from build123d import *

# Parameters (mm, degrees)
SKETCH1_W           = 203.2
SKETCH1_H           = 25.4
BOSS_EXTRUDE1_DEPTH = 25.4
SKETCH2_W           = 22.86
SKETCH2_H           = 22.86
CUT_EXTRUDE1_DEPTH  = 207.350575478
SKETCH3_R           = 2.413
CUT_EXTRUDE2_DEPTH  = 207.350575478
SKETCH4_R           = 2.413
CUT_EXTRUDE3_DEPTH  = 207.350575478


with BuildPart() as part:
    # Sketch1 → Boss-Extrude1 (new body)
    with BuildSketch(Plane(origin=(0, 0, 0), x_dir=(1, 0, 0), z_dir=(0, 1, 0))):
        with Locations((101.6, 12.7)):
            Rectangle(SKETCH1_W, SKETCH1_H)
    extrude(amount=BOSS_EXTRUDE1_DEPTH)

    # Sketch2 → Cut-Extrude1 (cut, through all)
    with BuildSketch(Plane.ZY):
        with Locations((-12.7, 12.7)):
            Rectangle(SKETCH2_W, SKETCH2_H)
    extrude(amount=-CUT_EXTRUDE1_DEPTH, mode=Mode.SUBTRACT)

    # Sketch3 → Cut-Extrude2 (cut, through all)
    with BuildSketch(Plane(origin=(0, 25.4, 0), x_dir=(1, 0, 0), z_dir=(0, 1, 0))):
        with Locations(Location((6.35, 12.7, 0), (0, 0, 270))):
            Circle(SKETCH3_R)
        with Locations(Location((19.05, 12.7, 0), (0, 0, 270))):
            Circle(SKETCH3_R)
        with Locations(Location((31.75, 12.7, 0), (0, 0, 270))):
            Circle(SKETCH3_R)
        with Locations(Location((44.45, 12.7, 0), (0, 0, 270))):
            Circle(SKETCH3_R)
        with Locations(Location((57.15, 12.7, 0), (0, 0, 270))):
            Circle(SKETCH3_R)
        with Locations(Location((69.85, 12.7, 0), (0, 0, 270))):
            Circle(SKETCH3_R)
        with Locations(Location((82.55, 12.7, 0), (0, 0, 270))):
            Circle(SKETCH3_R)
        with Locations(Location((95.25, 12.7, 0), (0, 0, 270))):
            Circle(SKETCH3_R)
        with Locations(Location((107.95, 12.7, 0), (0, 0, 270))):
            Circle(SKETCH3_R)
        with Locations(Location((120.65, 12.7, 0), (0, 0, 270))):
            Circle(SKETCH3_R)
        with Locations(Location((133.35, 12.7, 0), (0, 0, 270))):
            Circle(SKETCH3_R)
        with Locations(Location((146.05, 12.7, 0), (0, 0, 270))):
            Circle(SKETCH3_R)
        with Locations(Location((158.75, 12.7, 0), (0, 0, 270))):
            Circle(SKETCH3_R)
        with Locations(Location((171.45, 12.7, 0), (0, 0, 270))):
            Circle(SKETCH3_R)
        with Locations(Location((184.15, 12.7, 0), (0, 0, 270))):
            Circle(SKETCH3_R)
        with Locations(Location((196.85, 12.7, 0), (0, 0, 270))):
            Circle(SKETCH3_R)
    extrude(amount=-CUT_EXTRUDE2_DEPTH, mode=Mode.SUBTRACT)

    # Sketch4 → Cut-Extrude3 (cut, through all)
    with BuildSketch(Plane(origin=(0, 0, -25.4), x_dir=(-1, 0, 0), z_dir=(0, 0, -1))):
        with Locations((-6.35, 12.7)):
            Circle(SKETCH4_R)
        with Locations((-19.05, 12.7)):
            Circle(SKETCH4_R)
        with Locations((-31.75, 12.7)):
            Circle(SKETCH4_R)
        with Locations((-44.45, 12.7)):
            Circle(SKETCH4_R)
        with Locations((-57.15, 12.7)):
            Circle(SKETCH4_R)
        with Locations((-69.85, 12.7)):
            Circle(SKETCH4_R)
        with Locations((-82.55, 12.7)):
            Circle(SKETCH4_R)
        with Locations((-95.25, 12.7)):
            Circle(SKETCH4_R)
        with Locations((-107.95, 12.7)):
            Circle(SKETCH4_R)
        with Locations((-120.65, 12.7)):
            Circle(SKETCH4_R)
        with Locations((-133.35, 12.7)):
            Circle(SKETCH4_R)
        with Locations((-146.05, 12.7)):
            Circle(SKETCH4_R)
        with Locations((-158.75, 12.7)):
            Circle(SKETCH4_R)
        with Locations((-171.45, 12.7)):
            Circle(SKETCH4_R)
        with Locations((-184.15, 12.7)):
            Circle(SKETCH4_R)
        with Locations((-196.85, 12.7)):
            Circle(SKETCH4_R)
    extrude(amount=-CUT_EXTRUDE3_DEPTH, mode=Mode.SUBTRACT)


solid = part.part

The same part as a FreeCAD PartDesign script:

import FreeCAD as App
import Part
import Sketcher
from FreeCAD import Vector
Q = App.Units.Quantity


def add_polygon(sketch, points):
    """Adds a closed chain of lines whose ends are joined by coincident constraints."""
    first, n = sketch.GeometryCount, len(points)
    for a, b in zip(points, points[1:] + points[:1]):
        sketch.addGeometry(Part.LineSegment(App.Vector(*a, 0), App.Vector(*b, 0)), False)
    for i in range(n):
        sketch.addConstraint(Sketcher.Constraint("Coincident", first + i, 2, first + (i + 1) % n, 1))

doc = App.newDocument("Part")
params = doc.addObject("Spreadsheet::Sheet", "Params")
for row, (alias, value) in enumerate([
    ("sketch1_width", "8 in"),
    ("sketch1_height", "1 in"),
    ("pad1_length", "1 in"),
    ("sketch2_width", "0.9 in"),
    ("sketch3_diameter", "0.19 in"),
    ("sketch4_diameter", "0.19 in"),
], start=1):
    params.set(f"A{row}", alias)
    params.set(f"B{row}", "=" + value)
    params.setAlias(f"B{row}", alias)

body = doc.addObject("PartDesign::Body", "Body")

sketch1 = doc.addObject("Sketcher::SketchObject", "Sketch")
body.addObject(sketch1)
sketch1.AttachmentSupport = (doc.XZ_Plane, [""])
sketch1.MapMode = "FlatFace"
add_polygon(sketch1, [(0, -25.4), (0, 0), (203.2, 0), (203.2, -25.4)])
sketch1.addConstraint(Sketcher.Constraint("Vertical", 0))
sketch1.addConstraint(Sketcher.Constraint("Horizontal", 1))
sketch1.addConstraint(Sketcher.Constraint("Vertical", 2))
sketch1.addConstraint(Sketcher.Constraint("Horizontal", 3))
sketch1.addConstraint(Sketcher.Constraint("Coincident", 0, 2, -1, 1))
sketch1.addConstraint(Sketcher.Constraint("DistanceX", 1, 1, 1, 2, Q("8 in")))
sketch1.addConstraint(Sketcher.Constraint("DistanceY", 0, 1, 0, 2, Q("1 in")))
sketch1.setExpression("Constraints[9]", "Params.sketch1_width")
sketch1.setExpression("Constraints[10]", "Params.sketch1_height")
pad1 = doc.addObject("PartDesign::Pad", "Pad")
body.addObject(pad1)
pad1.Profile = sketch1
pad1.setExpression("Length", "Params.pad1_length")
pad1.Reversed = True

sketch2 = doc.addObject("Sketcher::SketchObject", "Sketch001")
body.addObject(sketch2)
sketch2.AttachmentSupport = (doc.YZ_Plane, [""])
sketch2.MapMode = "FlatFace"
add_polygon(sketch2, [(24.13, -24.13), (1.27, -24.13), (1.27, -1.27), (24.13, -1.27)])
sketch2.addConstraint(Sketcher.Constraint("Horizontal", 0))
sketch2.addConstraint(Sketcher.Constraint("Vertical", 1))
sketch2.addConstraint(Sketcher.Constraint("Horizontal", 2))
sketch2.addConstraint(Sketcher.Constraint("Vertical", 3))
sketch2.addConstraint(Sketcher.Constraint("Equal", 2, 1))
sketch2.addConstraint(Sketcher.Constraint("DistanceX", 0, 2, 0, 1, Q("0.9 in")))
sketch2.addConstraint(Sketcher.Constraint("DistanceX", -1, 1, 0, 2, Q("0.05 in")))
sketch2.addConstraint(Sketcher.Constraint("DistanceY", 0, 2, -1, 1, Q("0.95 in")))
sketch2.setExpression("Constraints[9]", "Params.sketch2_width")
pocket1 = doc.addObject("PartDesign::Pocket", "Pocket")
body.addObject(pocket1)
pocket1.Profile = sketch2
pocket1.Type = "ThroughAll"
pocket1.Reversed = True

sketch3 = doc.addObject("Sketcher::SketchObject", "Sketch002")
body.addObject(sketch3)
sketch3.AttachmentSupport = (doc.XZ_Plane, [""])
sketch3.MapMode = "FlatFace"
sketch3.AttachmentOffset = App.Placement(Vector(0, 0, -1 * 25.4), App.Rotation())
sketch3.addGeometry(Part.Circle(Vector(6.35, -12.7, 0), Vector(0, 0, 1), 2.413), False)
sketch3.addGeometry(Part.Circle(Vector(19.05, -12.7, 0), Vector(0, 0, 1), 2.413), False)
sketch3.addGeometry(Part.Circle(Vector(31.75, -12.7, 0), Vector(0, 0, 1), 2.413), False)
sketch3.addGeometry(Part.Circle(Vector(44.45, -12.7, 0), Vector(0, 0, 1), 2.413), False)
sketch3.addGeometry(Part.Circle(Vector(57.15, -12.7, 0), Vector(0, 0, 1), 2.413), False)
sketch3.addGeometry(Part.Circle(Vector(69.85, -12.7, 0), Vector(0, 0, 1), 2.413), False)
sketch3.addGeometry(Part.Circle(Vector(82.55, -12.7, 0), Vector(0, 0, 1), 2.413), False)
sketch3.addGeometry(Part.Circle(Vector(95.25, -12.7, 0), Vector(0, 0, 1), 2.413), False)
sketch3.addGeometry(Part.Circle(Vector(107.95, -12.7, 0), Vector(0, 0, 1), 2.413), False)
sketch3.addGeometry(Part.Circle(Vector(120.65, -12.7, 0), Vector(0, 0, 1), 2.413), False)
sketch3.addGeometry(Part.Circle(Vector(133.35, -12.7, 0), Vector(0, 0, 1), 2.413), False)
sketch3.addGeometry(Part.Circle(Vector(146.05, -12.7, 0), Vector(0, 0, 1), 2.413), False)
sketch3.addGeometry(Part.Circle(Vector(158.75, -12.7, 0), Vector(0, 0, 1), 2.413), False)
sketch3.addGeometry(Part.Circle(Vector(171.45, -12.7, 0), Vector(0, 0, 1), 2.413), False)
sketch3.addGeometry(Part.Circle(Vector(184.15, -12.7, 0), Vector(0, 0, 1), 2.413), False)
sketch3.addGeometry(Part.Circle(Vector(196.85, -12.7, 0), Vector(0, 0, 1), 2.413), False)
sketch3.addConstraint(Sketcher.Constraint("Equal", 0, 1))
sketch3.addConstraint(Sketcher.Constraint("Equal", 1, 2))
sketch3.addConstraint(Sketcher.Constraint("Equal", 2, 3))
sketch3.addConstraint(Sketcher.Constraint("Equal", 3, 4))
sketch3.addConstraint(Sketcher.Constraint("Equal", 4, 5))
sketch3.addConstraint(Sketcher.Constraint("Equal", 5, 6))
sketch3.addConstraint(Sketcher.Constraint("Equal", 6, 7))
sketch3.addConstraint(Sketcher.Constraint("Equal", 7, 8))
sketch3.addConstraint(Sketcher.Constraint("Equal", 8, 9))
sketch3.addConstraint(Sketcher.Constraint("Equal", 9, 10))
sketch3.addConstraint(Sketcher.Constraint("Equal", 10, 11))
sketch3.addConstraint(Sketcher.Constraint("Equal", 11, 12))
sketch3.addConstraint(Sketcher.Constraint("Equal", 12, 13))
sketch3.addConstraint(Sketcher.Constraint("Equal", 13, 14))
sketch3.addConstraint(Sketcher.Constraint("Equal", 14, 15))
sketch3.addConstraint(Sketcher.Constraint("Horizontal", 0, 3, 1, 3))
sketch3.addConstraint(Sketcher.Constraint("Horizontal", 1, 3, 2, 3))
sketch3.addConstraint(Sketcher.Constraint("Horizontal", 2, 3, 3, 3))
sketch3.addConstraint(Sketcher.Constraint("Horizontal", 3, 3, 4, 3))
sketch3.addConstraint(Sketcher.Constraint("Horizontal", 4, 3, 5, 3))
sketch3.addConstraint(Sketcher.Constraint("Horizontal", 5, 3, 6, 3))
sketch3.addConstraint(Sketcher.Constraint("Horizontal", 6, 3, 7, 3))
sketch3.addConstraint(Sketcher.Constraint("Horizontal", 7, 3, 8, 3))
sketch3.addConstraint(Sketcher.Constraint("Horizontal", 8, 3, 9, 3))
sketch3.addConstraint(Sketcher.Constraint("Horizontal", 9, 3, 10, 3))
sketch3.addConstraint(Sketcher.Constraint("Horizontal", 10, 3, 11, 3))
sketch3.addConstraint(Sketcher.Constraint("Horizontal", 11, 3, 12, 3))
sketch3.addConstraint(Sketcher.Constraint("Horizontal", 12, 3, 13, 3))
sketch3.addConstraint(Sketcher.Constraint("Horizontal", 13, 3, 14, 3))
sketch3.addConstraint(Sketcher.Constraint("Horizontal", 14, 3, 15, 3))
sketch3.addConstraint(Sketcher.Constraint("Diameter", 0, Q("0.19 in")))
sketch3.addConstraint(Sketcher.Constraint("DistanceX", 0, 3, 2, 3, Q("1 in")))
sketch3.addConstraint(Sketcher.Constraint("DistanceX", 1, 3, 3, 3, Q("1 in")))
sketch3.addConstraint(Sketcher.Constraint("DistanceX", 2, 3, 4, 3, Q("1 in")))
sketch3.addConstraint(Sketcher.Constraint("DistanceX", 3, 3, 5, 3, Q("1 in")))
sketch3.addConstraint(Sketcher.Constraint("DistanceX", 4, 3, 6, 3, Q("1 in")))
sketch3.addConstraint(Sketcher.Constraint("DistanceX", 5, 3, 7, 3, Q("1 in")))
sketch3.addConstraint(Sketcher.Constraint("DistanceX", 6, 3, 8, 3, Q("1 in")))
sketch3.addConstraint(Sketcher.Constraint("DistanceX", 7, 3, 9, 3, Q("1 in")))
sketch3.addConstraint(Sketcher.Constraint("DistanceX", 8, 3, 10, 3, Q("1 in")))
sketch3.addConstraint(Sketcher.Constraint("DistanceX", 9, 3, 11, 3, Q("1 in")))
sketch3.addConstraint(Sketcher.Constraint("DistanceX", 10, 3, 12, 3, Q("1 in")))
sketch3.addConstraint(Sketcher.Constraint("DistanceX", 11, 3, 13, 3, Q("1 in")))
sketch3.addConstraint(Sketcher.Constraint("DistanceX", 12, 3, 14, 3, Q("1 in")))
sketch3.addConstraint(Sketcher.Constraint("DistanceX", 13, 3, 15, 3, Q("1 in")))
sketch3.addConstraint(Sketcher.Constraint("DistanceY", 0, 3, -1, 1, Q("0.5 in")))
sketch3.addConstraint(Sketcher.Constraint("DistanceX", 0, 3, 1, 3, Q("0.5 in")))
sketch3.addConstraint(Sketcher.Constraint("DistanceX", -1, 1, 0, 3, Q("0.25 in")))
sketch3.setExpression("Constraints[30]", "Params.sketch3_diameter")
pocket2 = doc.addObject("PartDesign::Pocket", "Pocket001")
body.addObject(pocket2)
pocket2.Profile = sketch3
pocket2.Type = "ThroughAll"
pocket2.Reversed = True

sketch4 = doc.addObject("Sketcher::SketchObject", "Sketch003")
body.addObject(sketch4)
sketch4.AttachmentSupport = (doc.XY_Plane, [""])
sketch4.MapMode = "FlatFace"
sketch4.AttachmentOffset = App.Placement(Vector(0, 0, -1 * 25.4), App.Rotation())
sketch4.addGeometry(Part.Circle(Vector(6.35, 12.7, 0), Vector(0, 0, 1), 2.413), False)
sketch4.addGeometry(Part.Circle(Vector(19.05, 12.7, 0), Vector(0, 0, 1), 2.413), False)
sketch4.addGeometry(Part.Circle(Vector(31.75, 12.7, 0), Vector(0, 0, 1), 2.413), False)
sketch4.addGeometry(Part.Circle(Vector(44.45, 12.7, 0), Vector(0, 0, 1), 2.413), False)
sketch4.addGeometry(Part.Circle(Vector(57.15, 12.7, 0), Vector(0, 0, 1), 2.413), False)
sketch4.addGeometry(Part.Circle(Vector(69.85, 12.7, 0), Vector(0, 0, 1), 2.413), False)
sketch4.addGeometry(Part.Circle(Vector(82.55, 12.7, 0), Vector(0, 0, 1), 2.413), False)
sketch4.addGeometry(Part.Circle(Vector(95.25, 12.7, 0), Vector(0, 0, 1), 2.413), False)
sketch4.addGeometry(Part.Circle(Vector(107.95, 12.7, 0), Vector(0, 0, 1), 2.413), False)
sketch4.addGeometry(Part.Circle(Vector(120.65, 12.7, 0), Vector(0, 0, 1), 2.413), False)
sketch4.addGeometry(Part.Circle(Vector(133.35, 12.7, 0), Vector(0, 0, 1), 2.413), False)
sketch4.addGeometry(Part.Circle(Vector(146.05, 12.7, 0), Vector(0, 0, 1), 2.413), False)
sketch4.addGeometry(Part.Circle(Vector(158.75, 12.7, 0), Vector(0, 0, 1), 2.413), False)
sketch4.addGeometry(Part.Circle(Vector(171.45, 12.7, 0), Vector(0, 0, 1), 2.413), False)
sketch4.addGeometry(Part.Circle(Vector(184.15, 12.7, 0), Vector(0, 0, 1), 2.413), False)
sketch4.addGeometry(Part.Circle(Vector(196.85, 12.7, 0), Vector(0, 0, 1), 2.413), False)
sketch4.addConstraint(Sketcher.Constraint("Equal", 0, 1))
sketch4.addConstraint(Sketcher.Constraint("Equal", 1, 2))
sketch4.addConstraint(Sketcher.Constraint("Equal", 2, 3))
sketch4.addConstraint(Sketcher.Constraint("Equal", 3, 4))
sketch4.addConstraint(Sketcher.Constraint("Equal", 4, 5))
sketch4.addConstraint(Sketcher.Constraint("Equal", 5, 6))
sketch4.addConstraint(Sketcher.Constraint("Equal", 6, 7))
sketch4.addConstraint(Sketcher.Constraint("Equal", 7, 8))
sketch4.addConstraint(Sketcher.Constraint("Equal", 8, 9))
sketch4.addConstraint(Sketcher.Constraint("Equal", 9, 10))
sketch4.addConstraint(Sketcher.Constraint("Equal", 10, 11))
sketch4.addConstraint(Sketcher.Constraint("Equal", 11, 12))
sketch4.addConstraint(Sketcher.Constraint("Equal", 12, 13))
sketch4.addConstraint(Sketcher.Constraint("Equal", 13, 14))
sketch4.addConstraint(Sketcher.Constraint("Equal", 14, 15))
sketch4.addConstraint(Sketcher.Constraint("Horizontal", 0, 3, 1, 3))
sketch4.addConstraint(Sketcher.Constraint("Horizontal", 1, 3, 2, 3))
sketch4.addConstraint(Sketcher.Constraint("Horizontal", 2, 3, 3, 3))
sketch4.addConstraint(Sketcher.Constraint("Horizontal", 3, 3, 4, 3))
sketch4.addConstraint(Sketcher.Constraint("Horizontal", 4, 3, 5, 3))
sketch4.addConstraint(Sketcher.Constraint("Horizontal", 5, 3, 6, 3))
sketch4.addConstraint(Sketcher.Constraint("Horizontal", 6, 3, 7, 3))
sketch4.addConstraint(Sketcher.Constraint("Horizontal", 7, 3, 8, 3))
sketch4.addConstraint(Sketcher.Constraint("Horizontal", 8, 3, 9, 3))
sketch4.addConstraint(Sketcher.Constraint("Horizontal", 9, 3, 10, 3))
sketch4.addConstraint(Sketcher.Constraint("Horizontal", 10, 3, 11, 3))
sketch4.addConstraint(Sketcher.Constraint("Horizontal", 11, 3, 12, 3))
sketch4.addConstraint(Sketcher.Constraint("Horizontal", 12, 3, 13, 3))
sketch4.addConstraint(Sketcher.Constraint("Horizontal", 13, 3, 14, 3))
sketch4.addConstraint(Sketcher.Constraint("Horizontal", 14, 3, 15, 3))
sketch4.addConstraint(Sketcher.Constraint("Diameter", 0, Q("0.19 in")))
sketch4.addConstraint(Sketcher.Constraint("DistanceX", 0, 3, 2, 3, Q("1 in")))
sketch4.addConstraint(Sketcher.Constraint("DistanceX", 1, 3, 3, 3, Q("1 in")))
sketch4.addConstraint(Sketcher.Constraint("DistanceX", 2, 3, 4, 3, Q("1 in")))
sketch4.addConstraint(Sketcher.Constraint("DistanceX", 3, 3, 5, 3, Q("1 in")))
sketch4.addConstraint(Sketcher.Constraint("DistanceX", 4, 3, 6, 3, Q("1 in")))
sketch4.addConstraint(Sketcher.Constraint("DistanceX", 5, 3, 7, 3, Q("1 in")))
sketch4.addConstraint(Sketcher.Constraint("DistanceX", 6, 3, 8, 3, Q("1 in")))
sketch4.addConstraint(Sketcher.Constraint("DistanceX", 7, 3, 9, 3, Q("1 in")))
sketch4.addConstraint(Sketcher.Constraint("DistanceX", 8, 3, 10, 3, Q("1 in")))
sketch4.addConstraint(Sketcher.Constraint("DistanceX", 9, 3, 11, 3, Q("1 in")))
sketch4.addConstraint(Sketcher.Constraint("DistanceX", 10, 3, 12, 3, Q("1 in")))
sketch4.addConstraint(Sketcher.Constraint("DistanceX", 11, 3, 13, 3, Q("1 in")))
sketch4.addConstraint(Sketcher.Constraint("DistanceX", 12, 3, 14, 3, Q("1 in")))
sketch4.addConstraint(Sketcher.Constraint("DistanceX", 13, 3, 15, 3, Q("1 in")))
sketch4.addConstraint(Sketcher.Constraint("DistanceY", -1, 1, 0, 3, Q("0.5 in")))
sketch4.addConstraint(Sketcher.Constraint("DistanceX", 0, 3, 1, 3, Q("0.5 in")))
sketch4.addConstraint(Sketcher.Constraint("DistanceX", -1, 1, 0, 3, Q("0.25 in")))
sketch4.setExpression("Constraints[30]", "Params.sketch4_diameter")
pocket3 = doc.addObject("PartDesign::Pocket", "Pocket002")
body.addObject(pocket3)
pocket3.Profile = sketch4
pocket3.Type = "ThroughAll"
pocket3.Reversed = True

doc.recompute()
